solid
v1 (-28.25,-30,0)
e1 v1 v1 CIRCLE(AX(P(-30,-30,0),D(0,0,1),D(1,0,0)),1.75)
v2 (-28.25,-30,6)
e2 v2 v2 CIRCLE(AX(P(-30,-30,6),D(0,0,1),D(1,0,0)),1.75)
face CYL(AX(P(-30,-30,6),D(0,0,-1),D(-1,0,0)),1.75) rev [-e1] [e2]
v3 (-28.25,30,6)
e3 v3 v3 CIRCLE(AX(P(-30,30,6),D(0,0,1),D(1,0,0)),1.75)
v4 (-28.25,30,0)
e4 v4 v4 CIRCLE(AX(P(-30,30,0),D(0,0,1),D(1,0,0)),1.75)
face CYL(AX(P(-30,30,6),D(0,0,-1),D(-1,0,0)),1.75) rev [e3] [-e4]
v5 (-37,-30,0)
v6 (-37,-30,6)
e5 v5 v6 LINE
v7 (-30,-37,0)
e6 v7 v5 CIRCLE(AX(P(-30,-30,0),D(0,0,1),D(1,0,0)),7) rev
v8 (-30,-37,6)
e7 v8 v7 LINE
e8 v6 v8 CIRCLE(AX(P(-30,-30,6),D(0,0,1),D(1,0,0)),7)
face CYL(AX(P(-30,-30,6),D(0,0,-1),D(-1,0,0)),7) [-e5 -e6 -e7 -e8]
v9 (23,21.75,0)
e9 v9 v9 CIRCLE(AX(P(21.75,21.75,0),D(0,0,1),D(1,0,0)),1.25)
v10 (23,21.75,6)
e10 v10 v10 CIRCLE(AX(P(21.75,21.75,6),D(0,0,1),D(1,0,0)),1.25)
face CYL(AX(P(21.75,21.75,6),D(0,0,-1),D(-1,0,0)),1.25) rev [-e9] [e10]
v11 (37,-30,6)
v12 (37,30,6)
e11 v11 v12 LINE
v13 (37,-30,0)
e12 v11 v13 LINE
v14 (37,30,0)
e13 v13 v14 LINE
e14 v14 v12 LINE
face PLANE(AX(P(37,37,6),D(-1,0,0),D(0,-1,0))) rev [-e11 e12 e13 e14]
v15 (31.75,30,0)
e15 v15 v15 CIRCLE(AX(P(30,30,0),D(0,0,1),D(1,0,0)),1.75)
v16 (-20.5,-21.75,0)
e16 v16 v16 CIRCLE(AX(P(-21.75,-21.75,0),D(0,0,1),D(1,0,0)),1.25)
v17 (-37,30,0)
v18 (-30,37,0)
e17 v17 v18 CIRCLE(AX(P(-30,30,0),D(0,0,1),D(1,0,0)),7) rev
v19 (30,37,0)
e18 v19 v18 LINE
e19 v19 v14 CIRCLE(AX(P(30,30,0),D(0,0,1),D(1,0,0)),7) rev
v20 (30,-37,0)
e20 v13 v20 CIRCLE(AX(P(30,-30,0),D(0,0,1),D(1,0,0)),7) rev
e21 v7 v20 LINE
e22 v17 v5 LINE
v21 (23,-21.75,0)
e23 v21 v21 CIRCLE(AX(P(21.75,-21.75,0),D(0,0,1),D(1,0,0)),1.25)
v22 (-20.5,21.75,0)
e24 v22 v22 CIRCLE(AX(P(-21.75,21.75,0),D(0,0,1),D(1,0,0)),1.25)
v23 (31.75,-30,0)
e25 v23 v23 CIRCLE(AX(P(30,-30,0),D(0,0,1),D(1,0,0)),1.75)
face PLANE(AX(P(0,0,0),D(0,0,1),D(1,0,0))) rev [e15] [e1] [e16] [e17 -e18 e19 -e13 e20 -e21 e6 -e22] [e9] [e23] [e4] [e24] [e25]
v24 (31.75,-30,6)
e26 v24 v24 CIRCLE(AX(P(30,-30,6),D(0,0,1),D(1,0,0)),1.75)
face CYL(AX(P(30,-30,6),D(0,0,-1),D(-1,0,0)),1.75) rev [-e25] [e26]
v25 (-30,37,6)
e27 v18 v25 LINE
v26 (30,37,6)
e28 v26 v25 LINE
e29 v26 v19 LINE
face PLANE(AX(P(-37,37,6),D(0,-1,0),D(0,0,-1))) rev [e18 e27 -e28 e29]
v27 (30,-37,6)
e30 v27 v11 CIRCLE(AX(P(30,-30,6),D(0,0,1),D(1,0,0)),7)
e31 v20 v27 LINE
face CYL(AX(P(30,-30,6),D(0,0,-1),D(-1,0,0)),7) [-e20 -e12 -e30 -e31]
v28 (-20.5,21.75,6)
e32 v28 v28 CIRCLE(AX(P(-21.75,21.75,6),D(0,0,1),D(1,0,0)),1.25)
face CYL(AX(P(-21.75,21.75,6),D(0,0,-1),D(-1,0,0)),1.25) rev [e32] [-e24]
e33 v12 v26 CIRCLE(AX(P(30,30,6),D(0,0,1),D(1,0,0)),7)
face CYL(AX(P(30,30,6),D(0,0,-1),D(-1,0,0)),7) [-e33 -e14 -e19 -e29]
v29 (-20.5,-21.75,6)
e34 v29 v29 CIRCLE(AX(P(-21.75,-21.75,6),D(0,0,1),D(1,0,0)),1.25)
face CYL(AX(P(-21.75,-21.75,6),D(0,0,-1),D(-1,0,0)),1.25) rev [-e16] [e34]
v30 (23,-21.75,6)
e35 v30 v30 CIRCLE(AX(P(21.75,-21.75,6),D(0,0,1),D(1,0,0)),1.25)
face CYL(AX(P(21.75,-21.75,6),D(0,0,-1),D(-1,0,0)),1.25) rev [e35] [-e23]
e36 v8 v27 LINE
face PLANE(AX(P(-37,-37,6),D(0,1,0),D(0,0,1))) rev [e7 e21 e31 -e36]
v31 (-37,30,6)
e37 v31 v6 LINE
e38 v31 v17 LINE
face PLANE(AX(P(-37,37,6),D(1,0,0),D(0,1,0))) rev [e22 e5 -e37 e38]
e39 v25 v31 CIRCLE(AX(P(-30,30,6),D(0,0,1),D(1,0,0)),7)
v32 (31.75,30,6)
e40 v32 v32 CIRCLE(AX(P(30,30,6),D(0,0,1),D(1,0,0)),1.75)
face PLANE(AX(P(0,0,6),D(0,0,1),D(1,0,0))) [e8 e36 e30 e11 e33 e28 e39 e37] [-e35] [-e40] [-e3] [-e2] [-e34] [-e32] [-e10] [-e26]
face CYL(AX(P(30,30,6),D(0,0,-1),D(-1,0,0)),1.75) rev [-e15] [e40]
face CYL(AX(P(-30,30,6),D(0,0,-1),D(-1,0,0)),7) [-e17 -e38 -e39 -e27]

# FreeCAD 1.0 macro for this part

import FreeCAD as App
import Part
import Sketcher

V = App.Vector
Q = App.Units.Quantity


def edges_at(feature, points):
    """Names of the edges that pass closest to the given points."""
    edges = feature.Shape.Edges
    near = lambda p: min(range(len(edges)), key=lambda i: edges[i].distToShape(Part.Vertex(*p))[0])
    return sorted({f"Edge{near(p) + 1}" for p in points})

doc = App.newDocument("Part")
params = doc.addObject("Spreadsheet::Sheet", "Params")
for row, (alias, value) in enumerate([
    ("sketch1_diameter", "3.5 mm"),
    ("sketch1_diameter2", "2.5 mm"),
    ("sketch1_width", "74 mm"),
    ("pad1_length", "6 mm"),
    ("fillet_radius", "7 mm"),
], start=1):
    params.set(f"A{row}", alias)
    params.set(f"B{row}", "=" + value)
    params.setAlias(f"B{row}", alias)

body = doc.addObject("PartDesign::Body", "Body")

sketch1 = body.newObject("Sketcher::SketchObject", "Sketch")
sketch1.AttachmentSupport = (doc.getObject("XY_Plane"), [""])
sketch1.MapMode = "FlatFace"
sketch1.addGeometry([
    Part.LineSegment(V(-37, 37, 0), V(-37, -37, 0)),
    Part.LineSegment(V(-37, -37, 0), V(37, -37, 0)),
    Part.LineSegment(V(37, -37, 0), V(37, 37, 0)),
    Part.LineSegment(V(37, 37, 0), V(-37, 37, 0)),
    Part.Circle(V(-30, -30, 0), V(0, 0, 1), 1.8),
    Part.Circle(V(-21.8, -21.8, 0), V(0, 0, 1), 1.2),
    Part.Circle(V(30, -30, 0), V(0, 0, 1), 1.8),
    Part.Circle(V(21.8, -21.8, 0), V(0, 0, 1), 1.2),
    Part.Circle(V(-21.8, 21.8, 0), V(0, 0, 1), 1.2),
    Part.Circle(V(-30, 30, 0), V(0, 0, 1), 1.8),
    Part.Circle(V(21.8, 21.8, 0), V(0, 0, 1), 1.2),
    Part.Circle(V(30, 30, 0), V(0, 0, 1), 1.8),
], False)
sketch1.addConstraint([
    Sketcher.Constraint("Coincident", 0, 2, 1, 1),
    Sketcher.Constraint("Coincident", 1, 2, 2, 1),
    Sketcher.Constraint("Coincident", 2, 2, 3, 1),
    Sketcher.Constraint("Coincident", 3, 2, 0, 1),
    Sketcher.Constraint("Vertical", 0),
    Sketcher.Constraint("Horizontal", 1),
    Sketcher.Constraint("Vertical", 2),
    Sketcher.Constraint("Horizontal", 3),
    Sketcher.Constraint("Equal", 4, 6),
    Sketcher.Constraint("Equal", 5, 7),
    Sketcher.Constraint("Equal", 7, 8),
    Sketcher.Constraint("Equal", 6, 9),
    Sketcher.Constraint("Equal", 8, 10),
    Sketcher.Constraint("Equal", 9, 11),
    Sketcher.Constraint("Symmetric", 7, 3, 8, 3, -1, 1),
    Sketcher.Constraint("Symmetric", 6, 3, 9, 3, -1, 1),
    Sketcher.Constraint("Symmetric", 5, 3, 10, 3, -1, 1),
    Sketcher.Constraint("Symmetric", 4, 3, 11, 3, -1, 1),
    Sketcher.Constraint("Symmetric", 0, 2, 2, 2, -1, 1),
    Sketcher.Constraint("Symmetric", 4, 3, 6, 3, -2),
    Sketcher.Constraint("Symmetric", 5, 3, 7, 3, -2),
    Sketcher.Constraint("Equal", 3, 0),
    Sketcher.Constraint("Diameter", 4, Q("3.5 mm")),
    Sketcher.Constraint("Diameter", 5, Q("2.5 mm")),
    Sketcher.Constraint("DistanceX", 1, 1, 1, 2, Q("74 mm")),
    Sketcher.Constraint("DistanceX", 4, 3, -1, 1, Q("30 mm")),
    Sketcher.Constraint("DistanceY", 4, 3, -1, 1, Q("30 mm")),
    Sketcher.Constraint("DistanceX", 5, 3, 7, 3, Q("43.5 mm")),
    Sketcher.Constraint("DistanceY", 5, 3, 8, 3, Q("43.5 mm")),
])
sketch1.setExpression("Constraints[22]", "Params.sketch1_diameter")
sketch1.setExpression("Constraints[23]", "Params.sketch1_diameter2")
sketch1.setExpression("Constraints[24]", "Params.sketch1_width")
pad1 = body.newObject("PartDesign::Pad", "Pad")
pad1.Profile = sketch1
pad1.setExpression("Length", "Params.pad1_length")
doc.recompute()

fillet = body.newObject("PartDesign::Fillet", "Fillet")
fillet.Base = (pad1, edges_at(pad1, [
    (-37, 37, 3),
    (37, 37, 3),
    (37, -37, 3),
    (-37, -37, 3),
]))
fillet.setExpression("Radius", "Params.fillet_radius")

doc.recompute()
